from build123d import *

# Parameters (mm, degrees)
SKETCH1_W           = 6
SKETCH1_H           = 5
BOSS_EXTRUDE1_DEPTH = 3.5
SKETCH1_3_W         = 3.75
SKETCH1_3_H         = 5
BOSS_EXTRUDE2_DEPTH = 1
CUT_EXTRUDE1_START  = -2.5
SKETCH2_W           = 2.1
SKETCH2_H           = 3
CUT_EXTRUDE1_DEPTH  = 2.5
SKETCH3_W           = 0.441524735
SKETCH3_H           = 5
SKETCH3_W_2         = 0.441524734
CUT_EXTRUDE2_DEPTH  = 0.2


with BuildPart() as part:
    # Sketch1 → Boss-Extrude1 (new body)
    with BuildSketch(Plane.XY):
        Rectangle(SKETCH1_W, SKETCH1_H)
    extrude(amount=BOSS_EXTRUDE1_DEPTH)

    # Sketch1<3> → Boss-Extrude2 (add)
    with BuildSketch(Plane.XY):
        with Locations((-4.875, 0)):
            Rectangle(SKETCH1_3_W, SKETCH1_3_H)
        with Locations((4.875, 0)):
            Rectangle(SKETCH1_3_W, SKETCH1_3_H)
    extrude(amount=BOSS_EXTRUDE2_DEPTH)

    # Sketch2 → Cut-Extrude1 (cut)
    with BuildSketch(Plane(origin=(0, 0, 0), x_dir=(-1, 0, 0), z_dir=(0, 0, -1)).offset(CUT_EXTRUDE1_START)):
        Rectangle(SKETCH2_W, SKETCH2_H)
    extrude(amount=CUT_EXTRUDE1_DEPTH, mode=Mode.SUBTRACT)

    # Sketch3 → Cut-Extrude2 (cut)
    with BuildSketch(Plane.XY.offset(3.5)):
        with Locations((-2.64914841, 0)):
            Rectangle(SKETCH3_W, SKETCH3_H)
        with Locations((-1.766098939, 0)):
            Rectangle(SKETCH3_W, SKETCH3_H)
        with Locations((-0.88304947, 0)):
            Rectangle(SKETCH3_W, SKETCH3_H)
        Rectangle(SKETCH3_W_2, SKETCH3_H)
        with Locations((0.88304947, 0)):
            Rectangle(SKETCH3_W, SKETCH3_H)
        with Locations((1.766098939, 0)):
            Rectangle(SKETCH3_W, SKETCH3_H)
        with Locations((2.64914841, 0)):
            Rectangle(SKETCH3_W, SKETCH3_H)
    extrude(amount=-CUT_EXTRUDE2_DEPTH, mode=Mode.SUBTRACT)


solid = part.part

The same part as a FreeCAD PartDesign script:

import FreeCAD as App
import Part
import Sketcher
Q = App.Units.Quantity


def add_polygon(sketch, points):
    """Adds a closed chain of lines whose ends are joined by coincident constraints."""
    first, n = sketch.GeometryCount, len(points)
    for a, b in zip(points, points[1:] + points[:1]):
        sketch.addGeometry(Part.LineSegment(App.Vector(*a, 0), App.Vector(*b, 0)), False)
    for i in range(n):
        sketch.addConstraint(Sketcher.Constraint("Coincident", first + i, 2, first + (i + 1) % n, 1))

doc = App.newDocument("Part")
body = doc.addObject("PartDesign::Body", "Body")

sketch1 = body.newObject("Sketcher::SketchObject", "Sketch")
sketch1.AttachmentSupport = (doc.getObject("XY_Plane"), [""])
sketch1.MapMode = "FlatFace"
add_polygon(sketch1, [(-3, 2), (-3, -2), (3, -2), (3, 2)])
sketch1.addConstraint(Sketcher.Constraint("Vertical", 0))
sketch1.addConstraint(Sketcher.Constraint("Horizontal", 1))
sketch1.addConstraint(Sketcher.Constraint("Vertical", 2))
sketch1.addConstraint(Sketcher.Constraint("Horizontal", 3))
sketch1.addConstraint(Sketcher.Constraint("Symmetric", 0, 2, 2, 2, -1, 1))
sketch1.addConstraint(Sketcher.Constraint("DistanceX", 1, 1, 1, 2, Q("6 mm")))
sketch1.addConstraint(Sketcher.Constraint("DistanceY", 0, 2, 0, 1, Q("5 mm")))
pad1 = body.newObject("PartDesign::Pad", "Pad")
pad1.Profile = sketch1
pad1.Length = 3.5

sketch2 = body.newObject("Sketcher::SketchObject", "Sketch001")
sketch2.AttachmentSupport = (doc.getObject("XY_Plane"), [""])
sketch2.MapMode = "FlatFace"
add_polygon(sketch2, [(-6.8, 2.5), (-6.8, -2.5), (-3, -2.5), (-3, 2.5)])
add_polygon(sketch2, [(3, 2.5), (3, -2.5), (6.8, -2.5), (6.8, 2.5)])
sketch2.addConstraint(Sketcher.Constraint("Vertical", 0))
sketch2.addConstraint(Sketcher.Constraint("Horizontal", 1))
sketch2.addConstraint(Sketcher.Constraint("Vertical", 2))
sketch2.addConstraint(Sketcher.Constraint("Horizontal", 3))
sketch2.addConstraint(Sketcher.Constraint("Vertical", 4))
sketch2.addConstraint(Sketcher.Constraint("Horizontal", 5))
sketch2.addConstraint(Sketcher.Constraint("Vertical", 6))
sketch2.addConstraint(Sketcher.Constraint("Horizontal", 7))
sketch2.addConstraint(Sketcher.Constraint("Symmetric", 2, 2, 4, 2, -1, 1))
sketch2.addConstraint(Sketcher.Constraint("Symmetric", 0, 2, 6, 2, -1, 1))
sketch2.addConstraint(Sketcher.Constraint("Horizontal", 1, 2, 4, 2))
sketch2.addConstraint(Sketcher.Constraint("DistanceY", 0, 2, 0, 1, Q("5 mm")))
sketch2.addConstraint(Sketcher.Constraint("DistanceX", 1, 2, -1, 1, Q("3 mm")))
sketch2.addConstraint(Sketcher.Constraint("DistanceX", 1, 1, 1, 2, Q("3.75 mm")))
pad2 = body.newObject("PartDesign::Pad", "Pad001")
pad2.Profile = sketch2
pad2.Length = 1

sketch3 = body.newObject("Sketcher::SketchObject", "Sketch002")
sketch3.AttachmentSupport = (doc.getObject("XY_Plane"), [""])
sketch3.MapMode = "FlatFace"
sketch3.AttachmentOffset = App.Placement(App.Vector(0, 0, 2.5), App.Rotation())
add_polygon(sketch3, [(1.1, 1.5), (1.1, -1.5), (-1.1, -1.5), (-1.1, 1.5)])
sketch3.addConstraint(Sketcher.Constraint("Vertical", 0))
sketch3.addConstraint(Sketcher.Constraint("Horizontal", 1))
sketch3.addConstraint(Sketcher.Constraint("Vertical", 2))
sketch3.addConstraint(Sketcher.Constraint("Horizontal", 3))
sketch3.addConstraint(Sketcher.Constraint("Symmetric", 0, 2, 2, 2, -1, 1))
sketch3.addConstraint(Sketcher.Constraint("DistanceY", 0, 2, 0, 1, Q("3 mm")))
sketch3.addConstraint(Sketcher.Constraint("DistanceX", 1, 2, 1, 1, Q("2.1 mm")))
pocket1 = body.newObject("PartDesign::Pocket", "Pocket")
pocket1.Profile = sketch3
pocket1.Length = 2.5

sketch4 = body.newObject("Sketcher::SketchObject", "Sketch003")
sketch4.AttachmentSupport = (doc.getObject("XY_Plane"), [""])
sketch4.MapMode = "FlatFace"
sketch4.AttachmentOffset = App.Placement(App.Vector(0, 0, 3.5), App.Rotation())
add_polygon(sketch4, [(-2.87, 2.5), (-2.87, -2.5), (-2.43, -2.5), (-2.43, 2.5)])
add_polygon(sketch4, [(-1.99, 2.5), (-1.99, -2.5), (-1.55, -2.5), (-1.55, 2.5)])
add_polygon(sketch4, [(-1.1, 2.5), (-1.1, -2.5), (-0.66, -2.5), (-0.66, 2.5)])
add_polygon(sketch4, [(-0.22, 2.5), (-0.22, -2.5), (0.22, -2.5), (0.22, 2.5)])
add_polygon(sketch4, [(0.66, 2.5), (0.66, -2.5), (1.1, -2.5), (1.1, 2.5)])
add_polygon(sketch4, [(1.55, 2.5), (1.55, -2.5), (1.99, -2.5), (1.99, 2.5)])
add_polygon(sketch4, [(2.43, 2.5), (2.43, -2.5), (2.87, -2.5), (2.87, 2.5)])
sketch4.addConstraint(Sketcher.Constraint("Vertical", 0))
sketch4.addConstraint(Sketcher.Constraint("Horizontal", 1))
sketch4.addConstraint(Sketcher.Constraint("Vertical", 2))
sketch4.addConstraint(Sketcher.Constraint("Horizontal", 3))
sketch4.addConstraint(Sketcher.Constraint("Vertical", 4))
sketch4.addConstraint(Sketcher.Constraint("Horizontal", 5))
sketch4.addConstraint(Sketcher.Constraint("Vertical", 6))
sketch4.addConstraint(Sketcher.Constraint("Horizontal", 7))
sketch4.addConstraint(Sketcher.Constraint("Vertical", 8))
sketch4.addConstraint(Sketcher.Constraint("Horizontal", 9))
sketch4.addConstraint(Sketcher.Constraint("Vertical", 10))
sketch4.addConstraint(Sketcher.Constraint("Horizontal", 11))
sketch4.addConstraint(Sketcher.Constraint("Vertical", 12))
sketch4.addConstraint(Sketcher.Constraint("Horizontal", 13))
sketch4.addConstraint(Sketcher.Constraint("Vertical", 14))
sketch4.addConstraint(Sketcher.Constraint("Horizontal", 15))
sketch4.addConstraint(Sketcher.Constraint("Vertical", 16))
sketch4.addConstraint(Sketcher.Constraint("Horizontal", 17))
sketch4.addConstraint(Sketcher.Constraint("Vertical", 18))
sketch4.addConstraint(Sketcher.Constraint("Horizontal", 19))
sketch4.addConstraint(Sketcher.Constraint("Vertical", 20))
sketch4.addConstraint(Sketcher.Constraint("Horizontal", 21))
sketch4.addConstraint(Sketcher.Constraint("Vertical", 22))
sketch4.addConstraint(Sketcher.Constraint("Horizontal", 23))
sketch4.addConstraint(Sketcher.Constraint("Vertical", 24))
sketch4.addConstraint(Sketcher.Constraint("Horizontal", 25))
sketch4.addConstraint(Sketcher.Constraint("Vertical", 26))
sketch4.addConstraint(Sketcher.Constraint("Horizontal", 27))
sketch4.addConstraint(Sketcher.Constraint("Symmetric", 12, 2, 14, 2, -1, 1))
sketch4.addConstraint(Sketcher.Constraint("Symmetric", 10, 2, 16, 2, -1, 1))
sketch4.addConstraint(Sketcher.Constraint("Symmetric", 8, 2, 18, 2, -1, 1))
sketch4.addConstraint(Sketcher.Constraint("Symmetric", 6, 2, 20, 2, -1, 1))
sketch4.addConstraint(Sketcher.Constraint("Symmetric", 4, 2, 22, 2, -1, 1))
sketch4.addConstraint(Sketcher.Constraint("Symmetric", 2, 2, 24, 2, -1, 1))
sketch4.addConstraint(Sketcher.Constraint("Symmetric", 0, 2, 26, 2, -1, 1))
sketch4.addConstraint(Sketcher.Constraint("Horizontal", 1, 2, 4, 2))
sketch4.addConstraint(Sketcher.Constraint("Horizontal", 3, 2, 6, 2))
sketch4.addConstraint(Sketcher.Constraint("Horizontal", 5, 2, 8, 2))
sketch4.addConstraint(Sketcher.Constraint("Horizontal", 7, 2, 10, 2))
sketch4.addConstraint(Sketcher.Constraint("Horizontal", 9, 2, 12, 2))
sketch4.addConstraint(Sketcher.Constraint("Horizontal", 11, 2, 14, 2))
sketch4.addConstraint(Sketcher.Constraint("Equal", 3, 5))
sketch4.addConstraint(Sketcher.Constraint("Equal", 7, 9))
sketch4.addConstraint(Sketcher.Constraint("Equal", 11, 13))
sketch4.addConstraint(Sketcher.Constraint("DistanceY", 0, 2, 0, 1, Q("5 mm")))
sketch4.addConstraint(Sketcher.Constraint("DistanceX", 0, 2, 8, 2, Q("1.766099 mm")))
sketch4.addConstraint(Sketcher.Constraint("DistanceX", 4, 2, 12, 2, Q("1.766099 mm")))
sketch4.addConstraint(Sketcher.Constraint("DistanceX", 8, 2, 16, 2, Q("1.766099 mm")))
sketch4.addConstraint(Sketcher.Constraint("DistanceX", 1, 1, 1, 2, Q("0.441525 mm")))
pocket2 = body.newObject("PartDesign::Pocket", "Pocket001")
pocket2.Profile = sketch4
pocket2.Length = 0.2

doc.recompute()
